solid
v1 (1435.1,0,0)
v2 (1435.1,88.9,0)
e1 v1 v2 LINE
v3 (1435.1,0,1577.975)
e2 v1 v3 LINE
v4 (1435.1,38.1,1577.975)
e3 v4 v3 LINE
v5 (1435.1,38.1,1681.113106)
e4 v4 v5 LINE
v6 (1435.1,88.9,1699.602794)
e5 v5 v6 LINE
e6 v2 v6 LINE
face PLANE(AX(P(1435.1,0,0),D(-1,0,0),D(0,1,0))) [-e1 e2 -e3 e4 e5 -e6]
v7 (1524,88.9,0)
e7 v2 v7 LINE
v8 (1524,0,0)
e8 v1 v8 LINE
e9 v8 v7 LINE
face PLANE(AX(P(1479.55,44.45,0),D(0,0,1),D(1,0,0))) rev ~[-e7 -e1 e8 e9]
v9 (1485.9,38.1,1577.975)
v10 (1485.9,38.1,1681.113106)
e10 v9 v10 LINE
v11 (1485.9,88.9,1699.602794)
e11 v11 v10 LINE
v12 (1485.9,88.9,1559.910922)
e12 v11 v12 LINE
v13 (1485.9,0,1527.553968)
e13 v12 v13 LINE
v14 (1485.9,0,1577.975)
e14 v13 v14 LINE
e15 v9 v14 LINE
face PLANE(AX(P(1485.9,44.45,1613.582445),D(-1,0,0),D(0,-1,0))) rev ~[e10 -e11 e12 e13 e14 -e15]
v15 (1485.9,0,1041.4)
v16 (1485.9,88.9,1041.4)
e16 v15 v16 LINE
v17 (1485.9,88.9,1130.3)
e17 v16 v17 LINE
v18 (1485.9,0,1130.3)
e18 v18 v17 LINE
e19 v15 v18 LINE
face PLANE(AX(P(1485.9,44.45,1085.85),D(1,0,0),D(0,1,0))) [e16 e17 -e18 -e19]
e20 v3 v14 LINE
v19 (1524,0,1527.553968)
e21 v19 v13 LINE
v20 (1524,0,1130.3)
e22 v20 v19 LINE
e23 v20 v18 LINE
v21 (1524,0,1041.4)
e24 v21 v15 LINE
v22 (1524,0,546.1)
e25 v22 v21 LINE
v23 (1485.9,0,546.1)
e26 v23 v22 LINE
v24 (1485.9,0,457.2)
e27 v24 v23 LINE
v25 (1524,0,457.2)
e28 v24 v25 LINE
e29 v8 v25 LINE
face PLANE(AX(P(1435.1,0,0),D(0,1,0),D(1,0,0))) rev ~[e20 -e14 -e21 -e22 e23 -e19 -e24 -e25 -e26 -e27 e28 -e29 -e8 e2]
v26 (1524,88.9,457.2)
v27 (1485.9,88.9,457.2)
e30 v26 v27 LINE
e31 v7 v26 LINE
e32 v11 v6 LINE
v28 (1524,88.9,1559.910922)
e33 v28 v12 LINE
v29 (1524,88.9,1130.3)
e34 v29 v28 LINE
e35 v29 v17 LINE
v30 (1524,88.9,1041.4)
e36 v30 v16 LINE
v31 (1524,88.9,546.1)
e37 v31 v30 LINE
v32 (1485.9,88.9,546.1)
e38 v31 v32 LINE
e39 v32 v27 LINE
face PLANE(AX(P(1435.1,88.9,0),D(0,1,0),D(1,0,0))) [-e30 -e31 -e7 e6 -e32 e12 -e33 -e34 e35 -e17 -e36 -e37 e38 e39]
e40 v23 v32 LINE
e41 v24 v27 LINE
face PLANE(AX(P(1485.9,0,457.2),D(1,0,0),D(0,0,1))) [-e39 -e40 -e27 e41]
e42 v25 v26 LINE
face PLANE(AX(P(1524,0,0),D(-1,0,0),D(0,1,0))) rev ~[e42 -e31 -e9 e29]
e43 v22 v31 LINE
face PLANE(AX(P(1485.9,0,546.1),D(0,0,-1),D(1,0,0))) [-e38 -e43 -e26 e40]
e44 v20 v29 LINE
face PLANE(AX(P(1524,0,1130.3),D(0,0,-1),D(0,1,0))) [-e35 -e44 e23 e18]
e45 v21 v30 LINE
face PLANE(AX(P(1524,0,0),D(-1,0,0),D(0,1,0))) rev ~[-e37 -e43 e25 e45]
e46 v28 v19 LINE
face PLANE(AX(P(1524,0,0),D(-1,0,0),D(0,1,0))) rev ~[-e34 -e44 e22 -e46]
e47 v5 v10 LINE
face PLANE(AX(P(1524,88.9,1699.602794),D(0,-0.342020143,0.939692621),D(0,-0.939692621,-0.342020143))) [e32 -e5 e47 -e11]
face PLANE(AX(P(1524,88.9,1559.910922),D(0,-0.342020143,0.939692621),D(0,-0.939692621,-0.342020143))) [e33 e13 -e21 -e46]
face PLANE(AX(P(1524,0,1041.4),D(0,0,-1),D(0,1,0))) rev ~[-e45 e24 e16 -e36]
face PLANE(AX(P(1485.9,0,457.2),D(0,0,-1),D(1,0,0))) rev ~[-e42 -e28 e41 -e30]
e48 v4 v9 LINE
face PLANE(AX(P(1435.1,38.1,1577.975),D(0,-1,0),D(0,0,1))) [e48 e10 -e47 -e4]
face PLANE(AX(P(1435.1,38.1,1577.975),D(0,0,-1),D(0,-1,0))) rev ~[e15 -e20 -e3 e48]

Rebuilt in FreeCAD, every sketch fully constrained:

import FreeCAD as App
import Part
import Sketcher
Q = App.Units.Quantity

doc = App.newDocument("Part")
body = doc.addObject("PartDesign::Body", "Body")

sketch1 = body.newObject("Sketcher::SketchObject", "Sketch")
sketch1.AttachmentSupport = (doc.getObject("XY_Plane"), [""])
sketch1.MapMode = "FlatFace"
sketch1.addGeometry(Part.LineSegment(App.Vector(1435, 89, 0), App.Vector(1435, 0, 0)), False)
sketch1.addGeometry(Part.LineSegment(App.Vector(1435, 0, 0), App.Vector(1524, 0, 0)), False)
sketch1.addGeometry(Part.LineSegment(App.Vector(1524, 0, 0), App.Vector(1524, 89, 0)), False)
sketch1.addGeometry(Part.LineSegment(App.Vector(1524, 89, 0), App.Vector(1435, 89, 0)), False)
sketch1.addConstraint(Sketcher.Constraint("Coincident", 0, 2, 1, 1))
sketch1.addConstraint(Sketcher.Constraint("Coincident", 1, 2, 2, 1))
sketch1.addConstraint(Sketcher.Constraint("Coincident", 2, 2, 3, 1))
sketch1.addConstraint(Sketcher.Constraint("Coincident", 3, 2, 0, 1))
sketch1.addConstraint(Sketcher.Constraint("Vertical", 0))
sketch1.addConstraint(Sketcher.Constraint("Horizontal", 1))
sketch1.addConstraint(Sketcher.Constraint("Vertical", 2))
sketch1.addConstraint(Sketcher.Constraint("Horizontal", 3))
sketch1.addConstraint(Sketcher.Constraint("PointOnObject", 0, 2, -1))
sketch1.addConstraint(Sketcher.Constraint("Equal", 3, 0))
sketch1.addConstraint(Sketcher.Constraint("DistanceX", 1, 1, 1, 2, Q("3.5 in")))
sketch1.addConstraint(Sketcher.Constraint("DistanceX", -1, 1, 1, 2, Q("60 in")))
pad1 = body.newObject("PartDesign::Pad", "Pad")
pad1.Profile = sketch1
pad1.Length = Q("96 in")

sketch2 = body.newObject("Sketcher::SketchObject", "Sketch001")
sketch2.AttachmentSupport = (doc.getObject("XZ_Plane"), [""])
sketch2.MapMode = "FlatFace"
sketch2.addGeometry(Part.LineSegment(App.Vector(1486, 546, 0), App.Vector(1486, 457, 0)), False)
sketch2.addGeometry(Part.LineSegment(App.Vector(1486, 457, 0), App.Vector(1524, 457, 0)), False)
sketch2.addGeometry(Part.LineSegment(App.Vector(1524, 457, 0), App.Vector(1524, 546, 0)), False)
sketch2.addGeometry(Part.LineSegment(App.Vector(1524, 546, 0), App.Vector(1486, 546, 0)), False)
sketch2.addConstraint(Sketcher.Constraint("Coincident", 0, 2, 1, 1))
sketch2.addConstraint(Sketcher.Constraint("Coincident", 1, 2, 2, 1))
sketch2.addConstraint(Sketcher.Constraint("Coincident", 2, 2, 3, 1))
sketch2.addConstraint(Sketcher.Constraint("Coincident", 3, 2, 0, 1))
sketch2.addConstraint(Sketcher.Constraint("Vertical", 0))
sketch2.addConstraint(Sketcher.Constraint("Horizontal", 1))
sketch2.addConstraint(Sketcher.Constraint("Vertical", 2))
sketch2.addConstraint(Sketcher.Constraint("Horizontal", 3))
sketch2.addConstraint(Sketcher.Constraint("DistanceX", 1, 1, 1, 2, Q("1.5 in")))
sketch2.addConstraint(Sketcher.Constraint("DistanceY", 0, 2, 0, 1, Q("3.5 in")))
sketch2.addConstraint(Sketcher.Constraint("DistanceY", -1, 1, 0, 2, Q("18 in")))
sketch2.addConstraint(Sketcher.Constraint("DistanceX", -1, 1, 1, 2, Q("60 in")))
pocket1 = body.newObject("PartDesign::Pocket", "Pocket")
pocket1.Profile = sketch2
pocket1.Type = "ThroughAll"

sketch3 = body.newObject("Sketcher::SketchObject", "Sketch002")
sketch3.AttachmentSupport = (doc.getObject("YZ_Plane"), [""])
sketch3.MapMode = "FlatFace"
sketch3.AttachmentOffset = App.Placement(App.Vector(0, 0, 60 * 25.4), App.Rotation())
sketch3.addGeometry(Part.LineSegment(App.Vector(0, 2438, 0), App.Vector(0, 1667, 0)), False)
sketch3.addGeometry(Part.LineSegment(App.Vector(0, 1667, 0), App.Vector(89, 1700, 0)), False)
sketch3.addGeometry(Part.LineSegment(App.Vector(89, 1700, 0), App.Vector(89, 2438, 0)), False)
sketch3.addGeometry(Part.LineSegment(App.Vector(89, 2438, 0), App.Vector(0, 2438, 0)), False)
sketch3.addConstraint(Sketcher.Constraint("Coincident", 0, 2, 1, 1))
sketch3.addConstraint(Sketcher.Constraint("Coincident", 1, 2, 2, 1))
sketch3.addConstraint(Sketcher.Constraint("Coincident", 2, 2, 3, 1))
sketch3.addConstraint(Sketcher.Constraint("Coincident", 3, 2, 0, 1))
sketch3.addConstraint(Sketcher.Constraint("Vertical", 0))
sketch3.addConstraint(Sketcher.Constraint("Vertical", 2))
sketch3.addConstraint(Sketcher.Constraint("Horizontal", 3))
sketch3.addConstraint(Sketcher.Constraint("PointOnObject", 0, 2, -2))
sketch3.addConstraint(Sketcher.Constraint("DistanceX", 3, 2, 3, 1, Q("3.5 in")))
sketch3.addConstraint(Sketcher.Constraint("DistanceY", -1, 1, 2, 2, Q("96 in")))
sketch3.addConstraint(Sketcher.Constraint("Angle", 1, Q("20 deg")))
sketch3.addConstraint(Sketcher.Constraint("DistanceY", 0, 2, 0, 1, Q("30.3604 in")))
pocket2 = body.newObject("PartDesign::Pocket", "Pocket001")
pocket2.Profile = sketch3
pocket2.Type = "ThroughAll"

sketch4 = body.newObject("Sketcher::SketchObject", "Sketch003")
sketch4.AttachmentSupport = (doc.getObject("YZ_Plane"), [""])
sketch4.MapMode = "FlatFace"
sketch4.AttachmentOffset = App.Placement(App.Vector(0, 0, 60 * 25.4), App.Rotation())
sketch4.addGeometry(Part.LineSegment(App.Vector(89, 1700, 0), App.Vector(0, 1667, 0)), False)
sketch4.addGeometry(Part.LineSegment(App.Vector(0, 1667, 0), App.Vector(0, 1528, 0)), False)
sketch4.addGeometry(Part.LineSegment(App.Vector(0, 1528, 0), App.Vector(89, 1560, 0)), False)
sketch4.addGeometry(Part.LineSegment(App.Vector(89, 1560, 0), App.Vector(89, 1700, 0)), False)
sketch4.addConstraint(Sketcher.Constraint("Coincident", 0, 2, 1, 1))
sketch4.addConstraint(Sketcher.Constraint("Coincident", 1, 2, 2, 1))
sketch4.addConstraint(Sketcher.Constraint("Coincident", 2, 2, 3, 1))
sketch4.addConstraint(Sketcher.Constraint("Coincident", 3, 2, 0, 1))
sketch4.addConstraint(Sketcher.Constraint("Vertical", 1))
sketch4.addConstraint(Sketcher.Constraint("Vertical", 3))
sketch4.addConstraint(Sketcher.Constraint("PointOnObject", 0, 2, -2))
sketch4.addConstraint(Sketcher.Constraint("Parallel", 0, 2))
sketch4.addConstraint(Sketcher.Constraint("DistanceY", 1, 2, 1, 1, Q("5.5 in")))
sketch4.addConstraint(Sketcher.Constraint("Angle", 0, Q("-160 deg")))
sketch4.addConstraint(Sketcher.Constraint("DistanceX", -1, 1, 2, 2, Q("3.5 in")))
sketch4.addConstraint(Sketcher.Constraint("DistanceY", -1, 1, 0, 2, 1667.253968))
pocket3 = body.newObject("PartDesign::Pocket", "Pocket002")
pocket3.Profile = sketch4
pocket3.Length = Q("1.5 in")

sketch5 = body.newObject("Sketcher::SketchObject", "Sketch004")
sketch5.AttachmentSupport = (doc.getObject("YZ_Plane"), [""])
sketch5.MapMode = "FlatFace"
sketch5.AttachmentOffset = App.Placement(App.Vector(0, 0, 56.5 * 25.4), App.Rotation())
sketch5.addGeometry(Part.LineSegment(App.Vector(38, 1692, 0), App.Vector(38, 1578, 0)), False)
sketch5.addGeometry(Part.LineSegment(App.Vector(38, 1578, 0), App.Vector(0, 1578, 0)), False)
sketch5.addGeometry(Part.LineSegment(App.Vector(0, 1578, 0), App.Vector(0, 1692, 0)), False)
sketch5.addGeometry(Part.LineSegment(App.Vector(0, 1692, 0), App.Vector(38, 1692, 0)), False)
sketch5.addConstraint(Sketcher.Constraint("Coincident", 0, 2, 1, 1))
sketch5.addConstraint(Sketcher.Constraint("Coincident", 1, 2, 2, 1))
sketch5.addConstraint(Sketcher.Constraint("Coincident", 2, 2, 3, 1))
sketch5.addConstraint(Sketcher.Constraint("Coincident", 3, 2, 0, 1))
sketch5.addConstraint(Sketcher.Constraint("Vertical", 0))
sketch5.addConstraint(Sketcher.Constraint("Horizontal", 1))
sketch5.addConstraint(Sketcher.Constraint("Vertical", 2))
sketch5.addConstraint(Sketcher.Constraint("Horizontal", 3))
sketch5.addConstraint(Sketcher.Constraint("PointOnObject", 1, 2, -2))
sketch5.addConstraint(Sketcher.Constraint("DistanceX", 1, 2, 1, 1, Q("1.5 in")))
sketch5.addConstraint(Sketcher.Constraint("DistanceY", 0, 2, 0, 1, Q("4.5 in")))
sketch5.addConstraint(Sketcher.Constraint("DistanceY", -1, 1, 0, 2, Q("62.125 in")))
pocket4 = body.newObject("PartDesign::Pocket", "Pocket003")
pocket4.Profile = sketch5
pocket4.Type = "ThroughAll"
pocket4.Reversed = True

sketch6 = body.newObject("Sketcher::SketchObject", "Sketch005")
sketch6.AttachmentSupport = (doc.getObject("YZ_Plane"), [""])
sketch6.MapMode = "FlatFace"
sketch6.AttachmentOffset = App.Placement(App.Vector(0, 0, 60 * 25.4), App.Rotation())
sketch6.addGeometry(Part.LineSegment(App.Vector(0, 1130, 0), App.Vector(0, 1041, 0)), False)
sketch6.addGeometry(Part.LineSegment(App.Vector(0, 1041, 0), App.Vector(89, 1041, 0)), False)
sketch6.addGeometry(Part.LineSegment(App.Vector(89, 1041, 0), App.Vector(89, 1130, 0)), False)
sketch6.addGeometry(Part.LineSegment(App.Vector(89, 1130, 0), App.Vector(0, 1130, 0)), False)
sketch6.addConstraint(Sketcher.Constraint("Coincident", 0, 2, 1, 1))
sketch6.addConstraint(Sketcher.Constraint("Coincident", 1, 2, 2, 1))
sketch6.addConstraint(Sketcher.Constraint("Coincident", 2, 2, 3, 1))
sketch6.addConstraint(Sketcher.Constraint("Coincident", 3, 2, 0, 1))
sketch6.addConstraint(Sketcher.Constraint("Vertical", 0))
sketch6.addConstraint(Sketcher.Constraint("Horizontal", 1))
sketch6.addConstraint(Sketcher.Constraint("Vertical", 2))
sketch6.addConstraint(Sketcher.Constraint("Horizontal", 3))
sketch6.addConstraint(Sketcher.Constraint("PointOnObject", 0, 2, -2))
sketch6.addConstraint(Sketcher.Constraint("Equal", 3, 0))
sketch6.addConstraint(Sketcher.Constraint("DistanceX", 1, 1, 1, 2, Q("3.5 in")))
sketch6.addConstraint(Sketcher.Constraint("DistanceY", -1, 1, 0, 2, Q("41 in")))
pocket5 = body.newObject("PartDesign::Pocket", "Pocket004")
pocket5.Profile = sketch6
pocket5.Length = Q("1.5 in")

doc.recompute()
